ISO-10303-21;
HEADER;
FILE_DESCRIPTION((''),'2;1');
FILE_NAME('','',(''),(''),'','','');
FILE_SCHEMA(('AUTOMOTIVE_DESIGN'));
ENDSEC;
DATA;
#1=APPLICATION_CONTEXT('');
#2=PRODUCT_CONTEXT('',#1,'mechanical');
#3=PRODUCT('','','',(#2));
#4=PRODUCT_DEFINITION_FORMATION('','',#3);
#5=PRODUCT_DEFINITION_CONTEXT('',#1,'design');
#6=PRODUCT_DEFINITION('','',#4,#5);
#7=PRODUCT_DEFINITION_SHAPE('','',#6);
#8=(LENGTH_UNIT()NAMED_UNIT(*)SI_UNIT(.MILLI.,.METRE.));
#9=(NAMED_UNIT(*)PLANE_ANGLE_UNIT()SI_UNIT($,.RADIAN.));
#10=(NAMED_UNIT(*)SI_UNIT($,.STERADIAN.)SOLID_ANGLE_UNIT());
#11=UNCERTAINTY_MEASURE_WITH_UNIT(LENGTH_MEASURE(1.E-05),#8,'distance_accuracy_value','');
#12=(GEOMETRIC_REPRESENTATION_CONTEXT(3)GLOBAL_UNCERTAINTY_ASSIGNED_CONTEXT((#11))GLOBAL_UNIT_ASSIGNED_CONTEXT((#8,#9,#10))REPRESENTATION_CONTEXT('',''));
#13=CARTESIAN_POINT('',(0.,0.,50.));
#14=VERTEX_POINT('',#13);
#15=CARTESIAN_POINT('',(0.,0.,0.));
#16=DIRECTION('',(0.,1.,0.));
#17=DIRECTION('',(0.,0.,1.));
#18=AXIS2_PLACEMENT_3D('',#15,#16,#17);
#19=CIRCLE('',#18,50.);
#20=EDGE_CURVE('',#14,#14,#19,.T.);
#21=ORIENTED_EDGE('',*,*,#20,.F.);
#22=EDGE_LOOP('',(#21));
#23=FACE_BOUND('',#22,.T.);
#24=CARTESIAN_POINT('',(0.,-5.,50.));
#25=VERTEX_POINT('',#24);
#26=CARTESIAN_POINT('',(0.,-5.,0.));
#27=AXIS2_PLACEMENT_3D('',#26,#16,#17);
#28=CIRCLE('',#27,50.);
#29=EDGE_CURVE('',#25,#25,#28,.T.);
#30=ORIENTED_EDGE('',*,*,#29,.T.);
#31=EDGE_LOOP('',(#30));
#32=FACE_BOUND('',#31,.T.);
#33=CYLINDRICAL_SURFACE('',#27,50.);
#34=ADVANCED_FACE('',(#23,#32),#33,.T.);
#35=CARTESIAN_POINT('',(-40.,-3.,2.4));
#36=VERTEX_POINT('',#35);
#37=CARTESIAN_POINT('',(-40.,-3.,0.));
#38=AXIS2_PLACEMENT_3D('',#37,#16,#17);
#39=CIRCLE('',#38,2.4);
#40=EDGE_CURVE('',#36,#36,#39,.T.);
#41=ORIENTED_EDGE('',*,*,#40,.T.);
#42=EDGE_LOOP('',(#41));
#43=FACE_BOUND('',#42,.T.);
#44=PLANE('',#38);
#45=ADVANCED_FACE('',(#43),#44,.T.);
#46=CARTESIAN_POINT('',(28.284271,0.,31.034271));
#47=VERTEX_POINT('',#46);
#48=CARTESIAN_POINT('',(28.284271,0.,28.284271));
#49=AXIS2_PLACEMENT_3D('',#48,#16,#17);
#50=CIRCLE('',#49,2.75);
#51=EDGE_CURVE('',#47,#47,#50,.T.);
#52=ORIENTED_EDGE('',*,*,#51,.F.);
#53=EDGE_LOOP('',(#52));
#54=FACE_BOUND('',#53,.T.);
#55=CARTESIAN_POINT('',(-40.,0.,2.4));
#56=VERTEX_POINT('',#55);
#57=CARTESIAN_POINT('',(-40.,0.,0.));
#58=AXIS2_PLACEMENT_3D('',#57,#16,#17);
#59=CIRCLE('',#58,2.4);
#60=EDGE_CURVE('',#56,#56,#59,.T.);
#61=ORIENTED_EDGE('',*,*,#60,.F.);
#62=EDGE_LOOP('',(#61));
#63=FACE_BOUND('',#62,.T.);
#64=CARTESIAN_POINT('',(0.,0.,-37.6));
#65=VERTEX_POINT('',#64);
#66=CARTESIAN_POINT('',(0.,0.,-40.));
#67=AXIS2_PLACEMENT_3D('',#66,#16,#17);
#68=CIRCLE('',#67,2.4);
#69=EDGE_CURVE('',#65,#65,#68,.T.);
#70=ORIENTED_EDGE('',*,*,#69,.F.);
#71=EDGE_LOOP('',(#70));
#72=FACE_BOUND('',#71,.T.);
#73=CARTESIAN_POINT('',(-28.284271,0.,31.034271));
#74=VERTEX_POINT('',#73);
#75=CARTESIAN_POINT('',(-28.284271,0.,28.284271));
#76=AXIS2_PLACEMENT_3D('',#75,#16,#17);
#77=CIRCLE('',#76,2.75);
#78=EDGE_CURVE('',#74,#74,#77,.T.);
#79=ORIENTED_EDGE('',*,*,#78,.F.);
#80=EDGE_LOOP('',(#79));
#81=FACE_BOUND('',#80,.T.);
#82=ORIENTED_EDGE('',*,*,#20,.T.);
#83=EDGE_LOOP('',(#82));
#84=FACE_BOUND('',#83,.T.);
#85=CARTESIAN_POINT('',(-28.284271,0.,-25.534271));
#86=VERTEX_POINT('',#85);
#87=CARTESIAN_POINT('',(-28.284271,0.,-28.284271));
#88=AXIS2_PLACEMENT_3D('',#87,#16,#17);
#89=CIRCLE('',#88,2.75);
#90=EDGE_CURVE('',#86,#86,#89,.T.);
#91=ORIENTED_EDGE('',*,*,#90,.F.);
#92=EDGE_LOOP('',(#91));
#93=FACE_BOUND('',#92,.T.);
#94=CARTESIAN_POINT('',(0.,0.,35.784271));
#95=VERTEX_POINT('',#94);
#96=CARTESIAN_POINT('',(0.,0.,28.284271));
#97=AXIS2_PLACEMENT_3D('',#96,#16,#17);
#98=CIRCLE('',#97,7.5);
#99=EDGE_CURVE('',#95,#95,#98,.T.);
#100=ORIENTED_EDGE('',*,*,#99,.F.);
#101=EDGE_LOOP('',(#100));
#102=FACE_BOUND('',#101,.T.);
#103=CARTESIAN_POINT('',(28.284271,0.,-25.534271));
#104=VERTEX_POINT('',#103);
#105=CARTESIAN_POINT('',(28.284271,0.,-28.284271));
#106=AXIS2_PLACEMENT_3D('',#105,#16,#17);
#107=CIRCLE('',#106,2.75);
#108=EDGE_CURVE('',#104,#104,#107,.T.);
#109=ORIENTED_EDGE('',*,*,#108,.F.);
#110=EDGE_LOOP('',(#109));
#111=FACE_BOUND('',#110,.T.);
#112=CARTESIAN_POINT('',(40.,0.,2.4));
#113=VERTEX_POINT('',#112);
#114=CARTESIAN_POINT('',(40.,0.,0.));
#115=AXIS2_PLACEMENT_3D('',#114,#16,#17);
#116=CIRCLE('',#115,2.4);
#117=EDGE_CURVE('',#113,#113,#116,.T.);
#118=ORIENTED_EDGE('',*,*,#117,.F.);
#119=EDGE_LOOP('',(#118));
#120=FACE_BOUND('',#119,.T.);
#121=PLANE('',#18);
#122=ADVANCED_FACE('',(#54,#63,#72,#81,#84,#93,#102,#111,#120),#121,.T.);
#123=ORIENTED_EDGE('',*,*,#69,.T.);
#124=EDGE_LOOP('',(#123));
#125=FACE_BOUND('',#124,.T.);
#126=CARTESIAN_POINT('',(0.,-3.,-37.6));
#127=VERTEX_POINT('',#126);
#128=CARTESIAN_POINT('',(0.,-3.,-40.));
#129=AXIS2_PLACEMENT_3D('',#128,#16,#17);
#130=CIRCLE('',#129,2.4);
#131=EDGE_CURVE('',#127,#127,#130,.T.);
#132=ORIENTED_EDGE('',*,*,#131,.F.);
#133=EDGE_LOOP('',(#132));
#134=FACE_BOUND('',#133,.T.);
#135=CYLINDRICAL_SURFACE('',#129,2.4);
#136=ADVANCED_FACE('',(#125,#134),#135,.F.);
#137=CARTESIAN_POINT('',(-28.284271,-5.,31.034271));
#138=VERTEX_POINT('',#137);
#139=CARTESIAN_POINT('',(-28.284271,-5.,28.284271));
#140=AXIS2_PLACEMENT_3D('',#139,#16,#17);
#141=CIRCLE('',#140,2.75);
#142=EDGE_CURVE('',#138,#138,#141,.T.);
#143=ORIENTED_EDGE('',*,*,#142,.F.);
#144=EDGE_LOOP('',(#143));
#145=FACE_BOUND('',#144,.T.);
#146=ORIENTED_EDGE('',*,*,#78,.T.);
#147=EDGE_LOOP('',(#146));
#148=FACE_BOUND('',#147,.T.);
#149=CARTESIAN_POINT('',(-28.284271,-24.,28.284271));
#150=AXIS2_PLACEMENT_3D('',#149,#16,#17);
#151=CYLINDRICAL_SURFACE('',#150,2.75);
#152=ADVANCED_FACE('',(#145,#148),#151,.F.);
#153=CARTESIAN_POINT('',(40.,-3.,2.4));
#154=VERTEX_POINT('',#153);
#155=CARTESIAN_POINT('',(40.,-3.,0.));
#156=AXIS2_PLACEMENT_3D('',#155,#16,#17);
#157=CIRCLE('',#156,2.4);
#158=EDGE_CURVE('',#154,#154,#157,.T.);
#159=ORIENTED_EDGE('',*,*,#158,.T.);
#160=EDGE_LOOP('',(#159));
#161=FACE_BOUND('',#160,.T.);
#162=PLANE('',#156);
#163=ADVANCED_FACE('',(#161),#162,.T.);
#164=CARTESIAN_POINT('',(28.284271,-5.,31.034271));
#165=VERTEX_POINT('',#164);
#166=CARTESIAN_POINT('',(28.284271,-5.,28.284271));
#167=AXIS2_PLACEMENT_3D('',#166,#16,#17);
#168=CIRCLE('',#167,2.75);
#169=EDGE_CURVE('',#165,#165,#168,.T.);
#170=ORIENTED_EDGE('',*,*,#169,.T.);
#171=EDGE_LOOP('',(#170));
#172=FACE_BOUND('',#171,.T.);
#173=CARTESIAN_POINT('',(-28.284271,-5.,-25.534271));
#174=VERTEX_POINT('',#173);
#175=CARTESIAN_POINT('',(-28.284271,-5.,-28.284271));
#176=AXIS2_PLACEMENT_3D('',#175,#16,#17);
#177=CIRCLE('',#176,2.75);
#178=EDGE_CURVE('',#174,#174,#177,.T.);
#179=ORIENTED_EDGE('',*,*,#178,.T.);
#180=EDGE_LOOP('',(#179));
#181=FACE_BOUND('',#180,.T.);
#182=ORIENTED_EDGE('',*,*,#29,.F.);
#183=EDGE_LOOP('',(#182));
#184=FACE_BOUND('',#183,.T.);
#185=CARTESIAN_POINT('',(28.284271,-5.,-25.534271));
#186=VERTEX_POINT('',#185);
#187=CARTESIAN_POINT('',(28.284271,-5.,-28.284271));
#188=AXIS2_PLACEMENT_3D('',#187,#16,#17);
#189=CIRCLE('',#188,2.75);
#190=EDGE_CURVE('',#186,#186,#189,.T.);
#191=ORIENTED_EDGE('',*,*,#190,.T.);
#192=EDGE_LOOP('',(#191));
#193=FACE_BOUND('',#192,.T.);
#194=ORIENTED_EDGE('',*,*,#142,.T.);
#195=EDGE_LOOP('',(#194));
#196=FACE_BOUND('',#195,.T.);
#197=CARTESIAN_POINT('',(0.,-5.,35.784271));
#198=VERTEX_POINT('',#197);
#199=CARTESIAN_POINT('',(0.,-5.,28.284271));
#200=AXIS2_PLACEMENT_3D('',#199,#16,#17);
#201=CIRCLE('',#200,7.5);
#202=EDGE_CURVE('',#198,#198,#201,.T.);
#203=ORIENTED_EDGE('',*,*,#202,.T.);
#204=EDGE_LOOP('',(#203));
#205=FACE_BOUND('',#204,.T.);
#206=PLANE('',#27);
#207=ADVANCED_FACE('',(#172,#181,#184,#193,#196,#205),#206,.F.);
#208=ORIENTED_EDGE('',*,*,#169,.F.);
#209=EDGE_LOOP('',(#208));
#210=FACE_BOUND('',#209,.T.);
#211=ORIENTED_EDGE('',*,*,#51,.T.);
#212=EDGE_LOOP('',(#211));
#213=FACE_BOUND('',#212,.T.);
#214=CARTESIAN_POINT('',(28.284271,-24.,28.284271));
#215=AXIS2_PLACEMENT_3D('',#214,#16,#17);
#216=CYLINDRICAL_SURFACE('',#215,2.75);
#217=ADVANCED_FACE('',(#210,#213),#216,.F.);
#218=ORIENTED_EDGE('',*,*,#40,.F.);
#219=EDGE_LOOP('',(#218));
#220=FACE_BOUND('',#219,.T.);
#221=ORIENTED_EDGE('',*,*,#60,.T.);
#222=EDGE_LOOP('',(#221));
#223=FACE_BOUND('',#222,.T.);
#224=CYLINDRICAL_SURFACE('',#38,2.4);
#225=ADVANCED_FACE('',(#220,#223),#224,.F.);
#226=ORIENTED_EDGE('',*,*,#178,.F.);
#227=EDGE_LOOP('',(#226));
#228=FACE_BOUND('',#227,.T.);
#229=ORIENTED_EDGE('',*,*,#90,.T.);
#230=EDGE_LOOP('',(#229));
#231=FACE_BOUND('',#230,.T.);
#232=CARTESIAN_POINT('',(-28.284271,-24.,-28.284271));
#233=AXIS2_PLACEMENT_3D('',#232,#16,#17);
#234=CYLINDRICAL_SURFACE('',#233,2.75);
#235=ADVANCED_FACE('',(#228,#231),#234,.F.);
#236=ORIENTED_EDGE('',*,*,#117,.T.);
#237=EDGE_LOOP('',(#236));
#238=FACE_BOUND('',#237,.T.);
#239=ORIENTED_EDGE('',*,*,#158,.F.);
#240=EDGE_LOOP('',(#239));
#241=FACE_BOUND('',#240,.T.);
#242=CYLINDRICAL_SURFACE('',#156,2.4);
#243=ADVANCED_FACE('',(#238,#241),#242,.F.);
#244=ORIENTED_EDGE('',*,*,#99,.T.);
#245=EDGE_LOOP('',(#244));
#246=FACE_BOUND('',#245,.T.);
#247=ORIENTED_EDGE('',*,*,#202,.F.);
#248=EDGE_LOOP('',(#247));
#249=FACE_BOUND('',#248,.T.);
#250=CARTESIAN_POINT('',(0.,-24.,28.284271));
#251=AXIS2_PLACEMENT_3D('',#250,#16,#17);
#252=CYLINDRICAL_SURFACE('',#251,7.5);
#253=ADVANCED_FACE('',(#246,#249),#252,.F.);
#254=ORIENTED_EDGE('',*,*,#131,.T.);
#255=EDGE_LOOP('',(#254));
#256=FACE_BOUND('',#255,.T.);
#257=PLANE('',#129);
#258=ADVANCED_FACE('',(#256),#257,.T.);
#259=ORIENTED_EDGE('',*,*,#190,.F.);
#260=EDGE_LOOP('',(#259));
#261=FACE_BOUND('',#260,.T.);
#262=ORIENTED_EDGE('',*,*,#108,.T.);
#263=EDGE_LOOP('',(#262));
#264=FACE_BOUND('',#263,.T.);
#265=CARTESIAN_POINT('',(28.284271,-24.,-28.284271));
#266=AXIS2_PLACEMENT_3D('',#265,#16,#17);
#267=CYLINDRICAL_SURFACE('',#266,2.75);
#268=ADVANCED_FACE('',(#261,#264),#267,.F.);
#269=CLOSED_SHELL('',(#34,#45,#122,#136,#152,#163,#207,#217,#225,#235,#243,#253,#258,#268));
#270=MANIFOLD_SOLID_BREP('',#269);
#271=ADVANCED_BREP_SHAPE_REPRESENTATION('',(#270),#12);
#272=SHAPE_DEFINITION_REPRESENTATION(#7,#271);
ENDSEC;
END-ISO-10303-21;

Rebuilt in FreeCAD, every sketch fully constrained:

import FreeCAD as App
import Part
import Sketcher
from FreeCAD import Vector

doc = App.newDocument("Part")
body = doc.addObject("PartDesign::Body", "Body")

sketch1 = body.newObject("Sketcher::SketchObject", "Sketch")
sketch1.AttachmentSupport = (doc.getObject("XZ_Plane"), [""])
sketch1.MapMode = "FlatFace"
sketch1.addGeometry(Part.Circle(Vector(0, 0, 0), Vector(0, 0, 1), 50), False)
sketch1.addConstraint(Sketcher.Constraint("Coincident", 0, 3, -1, 1))
sketch1.addConstraint(Sketcher.Constraint("Diameter", 0, 100.0))
pad1 = body.newObject("PartDesign::Pad", "Pad")
pad1.Profile = sketch1
pad1.Length = 5

sketch2 = body.newObject("Sketcher::SketchObject", "Sketch001")
sketch2.AttachmentSupport = (doc.getObject("XZ_Plane"), [""])
sketch2.MapMode = "FlatFace"
sketch2.addGeometry(Part.Circle(Vector(28.3, -28.3, 0), Vector(0, 0, 1), 2.8), False)
sketch2.addGeometry(Part.Circle(Vector(28.3, 28.3, 0), Vector(0, 0, 1), 2.8), False)
sketch2.addGeometry(Part.Circle(Vector(-28.3, 28.3, 0), Vector(0, 0, 1), 2.8), False)
sketch2.addGeometry(Part.Circle(Vector(-28.3, -28.3, 0), Vector(0, 0, 1), 2.8), False)
sketch2.addConstraint(Sketcher.Constraint("Equal", 0, 1))
sketch2.addConstraint(Sketcher.Constraint("Equal", 1, 2))
sketch2.addConstraint(Sketcher.Constraint("Equal", 2, 3))
sketch2.addConstraint(Sketcher.Constraint("Symmetric", 0, 3, 2, 3, -1, 1))
sketch2.addConstraint(Sketcher.Constraint("Symmetric", 1, 3, 3, 3, -1, 1))
sketch2.addConstraint(Sketcher.Constraint("Symmetric", 1, 3, 2, 3, -2))
sketch2.addConstraint(Sketcher.Constraint("Diameter", 0, 5.5))
sketch2.addConstraint(Sketcher.Constraint("DistanceX", -1, 1, 0, 3, 28.284271))
sketch2.addConstraint(Sketcher.Constraint("DistanceY", 0, 3, -1, 1, 28.284271))
pocket1 = body.newObject("PartDesign::Pocket", "Pocket")
pocket1.Profile = sketch2
pocket1.Length = 24
pocket1.Reversed = True

sketch3 = body.newObject("Sketcher::SketchObject", "Sketch002")
sketch3.AttachmentSupport = (doc.getObject("XZ_Plane"), [""])
sketch3.MapMode = "FlatFace"
sketch3.addGeometry(Part.Circle(Vector(0, 28, 0), Vector(0, 0, 1), 8), False)
sketch3.addConstraint(Sketcher.Constraint("PointOnObject", 0, 3, -2))
sketch3.addConstraint(Sketcher.Constraint("Diameter", 0, 15.0))
sketch3.addConstraint(Sketcher.Constraint("DistanceY", -1, 1, 0, 3, 28.284271))
pocket2 = body.newObject("PartDesign::Pocket", "Pocket001")
pocket2.Profile = sketch3
pocket2.Length = 24
pocket2.Reversed = True

sketch4 = body.newObject("Sketcher::SketchObject", "Sketch003")
sketch4.AttachmentSupport = (doc.getObject("XZ_Plane"), [""])
sketch4.MapMode = "FlatFace"
sketch4.addGeometry(Part.Circle(Vector(40, 0, 0), Vector(0, 0, 1), 2.4), False)
sketch4.addGeometry(Part.Circle(Vector(0, -40, 0), Vector(0, 0, 1), 2.4), False)
sketch4.addGeometry(Part.Circle(Vector(-40, 0, 0), Vector(0, 0, 1), 2.4), False)
sketch4.addConstraint(Sketcher.Constraint("Equal", 0, 1))
sketch4.addConstraint(Sketcher.Constraint("Equal", 1, 2))
sketch4.addConstraint(Sketcher.Constraint("Symmetric", 0, 3, 2, 3, -1, 1))
sketch4.addConstraint(Sketcher.Constraint("PointOnObject", 0, 3, -1))
sketch4.addConstraint(Sketcher.Constraint("PointOnObject", 1, 3, -2))
sketch4.addConstraint(Sketcher.Constraint("Diameter", 0, 4.8))
sketch4.addConstraint(Sketcher.Constraint("DistanceX", -1, 1, 0, 3, 40.0))
sketch4.addConstraint(Sketcher.Constraint("DistanceY", 1, 3, -1, 1, 40.0))
pocket3 = body.newObject("PartDesign::Pocket", "Pocket002")
pocket3.Profile = sketch4
pocket3.Length = 3
pocket3.Reversed = True

doc.recompute()
